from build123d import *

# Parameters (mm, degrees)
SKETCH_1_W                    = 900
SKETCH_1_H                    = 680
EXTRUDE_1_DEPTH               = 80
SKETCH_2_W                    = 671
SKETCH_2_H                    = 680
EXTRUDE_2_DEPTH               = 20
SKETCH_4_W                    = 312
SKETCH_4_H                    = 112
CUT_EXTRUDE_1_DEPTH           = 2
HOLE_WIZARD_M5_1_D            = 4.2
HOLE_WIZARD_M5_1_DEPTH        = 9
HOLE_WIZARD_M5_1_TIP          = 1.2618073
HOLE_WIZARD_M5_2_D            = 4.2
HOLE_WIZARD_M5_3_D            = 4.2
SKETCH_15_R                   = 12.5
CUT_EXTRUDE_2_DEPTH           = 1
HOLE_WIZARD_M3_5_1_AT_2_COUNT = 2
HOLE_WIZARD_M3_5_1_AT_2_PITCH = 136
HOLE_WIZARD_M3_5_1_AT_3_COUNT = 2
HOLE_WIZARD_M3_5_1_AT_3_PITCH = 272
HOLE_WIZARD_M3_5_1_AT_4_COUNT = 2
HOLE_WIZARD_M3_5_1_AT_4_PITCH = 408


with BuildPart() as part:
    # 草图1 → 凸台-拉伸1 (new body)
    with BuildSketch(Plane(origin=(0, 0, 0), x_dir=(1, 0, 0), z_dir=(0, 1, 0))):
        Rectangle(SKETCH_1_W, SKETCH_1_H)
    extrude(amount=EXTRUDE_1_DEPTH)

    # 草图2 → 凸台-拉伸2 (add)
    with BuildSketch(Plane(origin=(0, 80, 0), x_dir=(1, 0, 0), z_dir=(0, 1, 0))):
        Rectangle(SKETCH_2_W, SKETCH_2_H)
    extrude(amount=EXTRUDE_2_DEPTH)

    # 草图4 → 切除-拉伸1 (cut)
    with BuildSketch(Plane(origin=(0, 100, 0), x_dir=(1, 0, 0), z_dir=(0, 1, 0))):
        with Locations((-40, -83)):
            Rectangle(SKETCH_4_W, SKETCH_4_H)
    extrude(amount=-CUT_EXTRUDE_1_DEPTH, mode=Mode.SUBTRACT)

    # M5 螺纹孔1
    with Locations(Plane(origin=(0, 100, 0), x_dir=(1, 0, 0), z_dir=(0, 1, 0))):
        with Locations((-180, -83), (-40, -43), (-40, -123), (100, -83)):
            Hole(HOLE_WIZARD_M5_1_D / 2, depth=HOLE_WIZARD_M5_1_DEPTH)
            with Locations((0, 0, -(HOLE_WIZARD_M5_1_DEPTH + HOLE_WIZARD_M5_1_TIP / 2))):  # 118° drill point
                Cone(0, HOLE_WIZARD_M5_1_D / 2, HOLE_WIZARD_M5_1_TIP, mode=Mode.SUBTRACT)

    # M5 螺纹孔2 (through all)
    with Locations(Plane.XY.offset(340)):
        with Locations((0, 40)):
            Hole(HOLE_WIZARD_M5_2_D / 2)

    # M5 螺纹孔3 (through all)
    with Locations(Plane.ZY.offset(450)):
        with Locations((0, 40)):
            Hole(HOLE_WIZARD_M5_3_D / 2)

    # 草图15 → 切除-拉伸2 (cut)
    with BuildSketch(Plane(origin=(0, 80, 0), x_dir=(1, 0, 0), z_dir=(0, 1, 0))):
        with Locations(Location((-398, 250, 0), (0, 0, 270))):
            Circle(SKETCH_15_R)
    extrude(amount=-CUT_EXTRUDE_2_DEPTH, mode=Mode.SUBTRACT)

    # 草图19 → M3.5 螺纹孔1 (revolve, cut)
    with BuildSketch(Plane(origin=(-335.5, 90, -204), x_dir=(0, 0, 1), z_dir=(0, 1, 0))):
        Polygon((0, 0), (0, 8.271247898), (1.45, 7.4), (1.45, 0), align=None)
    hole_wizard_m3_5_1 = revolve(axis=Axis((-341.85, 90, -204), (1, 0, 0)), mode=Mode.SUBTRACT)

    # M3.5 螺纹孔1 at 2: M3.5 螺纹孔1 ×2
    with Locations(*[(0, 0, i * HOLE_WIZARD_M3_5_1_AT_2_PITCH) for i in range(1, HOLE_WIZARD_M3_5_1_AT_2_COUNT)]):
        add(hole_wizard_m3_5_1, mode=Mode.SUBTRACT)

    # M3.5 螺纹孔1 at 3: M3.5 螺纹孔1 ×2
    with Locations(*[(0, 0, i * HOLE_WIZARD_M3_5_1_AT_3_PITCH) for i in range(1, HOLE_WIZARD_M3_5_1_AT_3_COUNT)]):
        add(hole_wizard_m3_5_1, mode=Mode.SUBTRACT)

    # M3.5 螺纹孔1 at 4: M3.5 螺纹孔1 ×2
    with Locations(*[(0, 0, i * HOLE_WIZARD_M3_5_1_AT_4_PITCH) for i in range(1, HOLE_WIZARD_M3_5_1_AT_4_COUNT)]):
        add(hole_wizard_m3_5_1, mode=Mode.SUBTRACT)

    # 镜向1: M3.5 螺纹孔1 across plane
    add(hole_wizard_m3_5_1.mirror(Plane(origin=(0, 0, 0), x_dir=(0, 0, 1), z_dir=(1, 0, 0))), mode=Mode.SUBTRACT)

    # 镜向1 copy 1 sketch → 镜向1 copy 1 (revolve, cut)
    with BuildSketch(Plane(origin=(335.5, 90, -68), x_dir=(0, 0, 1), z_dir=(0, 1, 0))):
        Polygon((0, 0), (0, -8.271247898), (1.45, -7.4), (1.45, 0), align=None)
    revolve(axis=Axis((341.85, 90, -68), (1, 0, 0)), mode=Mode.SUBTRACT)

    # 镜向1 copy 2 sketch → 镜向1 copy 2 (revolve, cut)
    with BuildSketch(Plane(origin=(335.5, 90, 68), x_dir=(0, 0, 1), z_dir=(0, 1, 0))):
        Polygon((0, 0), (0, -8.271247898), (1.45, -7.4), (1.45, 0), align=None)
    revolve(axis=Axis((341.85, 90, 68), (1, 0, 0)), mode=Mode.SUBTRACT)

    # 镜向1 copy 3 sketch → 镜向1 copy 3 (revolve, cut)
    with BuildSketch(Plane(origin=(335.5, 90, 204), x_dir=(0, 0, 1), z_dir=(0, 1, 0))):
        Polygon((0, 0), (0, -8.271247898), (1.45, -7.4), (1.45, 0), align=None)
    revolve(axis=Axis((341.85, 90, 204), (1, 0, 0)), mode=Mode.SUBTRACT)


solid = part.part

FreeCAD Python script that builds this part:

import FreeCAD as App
import Part
import Sketcher

V = App.Vector
Q = App.Units.Quantity

doc = App.newDocument("Part")
body = doc.addObject("PartDesign::Body", "Body")

# Sketch on XZ plane
sketch1 = body.newObject("Sketcher::SketchObject", "Sketch")
sketch1.AttachmentSupport = (doc.getObject("XZ_Plane"), [""])
sketch1.MapMode = "FlatFace"
sketch1.addGeometry([
    Part.LineSegment(V(-450, -340, 0), V(-450, 340, 0)),
    Part.LineSegment(V(-450, 340, 0), V(450, 340, 0)),
    Part.LineSegment(V(450, 340, 0), V(450, -340, 0)),
    Part.LineSegment(V(450, -340, 0), V(-450, -340, 0)),
], False)
sketch1.addConstraint([
    Sketcher.Constraint("Coincident", 0, 2, 1, 1),
    Sketcher.Constraint("Coincident", 1, 2, 2, 1),
    Sketcher.Constraint("Coincident", 2, 2, 3, 1),
    Sketcher.Constraint("Coincident", 3, 2, 0, 1),
    Sketcher.Constraint("Vertical", 0),
    Sketcher.Constraint("Horizontal", 1),
    Sketcher.Constraint("Vertical", 2),
    Sketcher.Constraint("Horizontal", 3),
    Sketcher.Constraint("Symmetric", 0, 2, 2, 2, -1, 1),
    Sketcher.Constraint("DistanceX", 1, 1, 1, 2, 900.0),
    Sketcher.Constraint("DistanceY", 0, 1, 0, 2, 680.0),
])
pad1 = body.newObject("PartDesign::Pad", "Pad")
pad1.Profile = sketch1
pad1.Length = 80
pad1.Reversed = True

# Sketch on XZ plane
sketch2 = body.newObject("Sketcher::SketchObject", "Sketch001")
sketch2.AttachmentSupport = (doc.getObject("XZ_Plane"), [""])
sketch2.MapMode = "FlatFace"
sketch2.AttachmentOffset = App.Placement(V(0, 0, -80), App.Rotation())
sketch2.addGeometry([
    Part.LineSegment(V(-336, -340, 0), V(-336, 340, 0)),
    Part.LineSegment(V(-336, 340, 0), V(336, 340, 0)),
    Part.LineSegment(V(336, 340, 0), V(336, -340, 0)),
    Part.LineSegment(V(336, -340, 0), V(-336, -340, 0)),
], False)
sketch2.addConstraint([
    Sketcher.Constraint("Coincident", 0, 2, 1, 1),
    Sketcher.Constraint("Coincident", 1, 2, 2, 1),
    Sketcher.Constraint("Coincident", 2, 2, 3, 1),
    Sketcher.Constraint("Coincident", 3, 2, 0, 1),
    Sketcher.Constraint("Vertical", 0),
    Sketcher.Constraint("Horizontal", 1),
    Sketcher.Constraint("Vertical", 2),
    Sketcher.Constraint("Horizontal", 3),
    Sketcher.Constraint("Symmetric", 0, 2, 2, 2, -1, 1),
    Sketcher.Constraint("DistanceX", 1, 1, 1, 2, 671.0),
    Sketcher.Constraint("DistanceY", 0, 1, 0, 2, 680.0),
])
pad2 = body.newObject("PartDesign::Pad", "Pad001")
pad2.Profile = sketch2
pad2.Length = 20
pad2.Reversed = True

# Sketch on XZ plane
sketch3 = body.newObject("Sketcher::SketchObject", "Sketch002")
sketch3.AttachmentSupport = (doc.getObject("XZ_Plane"), [""])
sketch3.MapMode = "FlatFace"
sketch3.AttachmentOffset = App.Placement(V(0, 0, -100), App.Rotation())
sketch3.addGeometry([
    Part.LineSegment(V(-196, 27, 0), V(-196, 139, 0)),
    Part.LineSegment(V(-196, 139, 0), V(116, 139, 0)),
    Part.LineSegment(V(116, 139, 0), V(116, 27, 0)),
    Part.LineSegment(V(116, 27, 0), V(-196, 27, 0)),
], False)
sketch3.addConstraint([
    Sketcher.Constraint("Coincident", 0, 2, 1, 1),
    Sketcher.Constraint("Coincident", 1, 2, 2, 1),
    Sketcher.Constraint("Coincident", 2, 2, 3, 1),
    Sketcher.Constraint("Coincident", 3, 2, 0, 1),
    Sketcher.Constraint("Vertical", 0),
    Sketcher.Constraint("Horizontal", 1),
    Sketcher.Constraint("Vertical", 2),
    Sketcher.Constraint("Horizontal", 3),
    Sketcher.Constraint("DistanceX", 1, 1, 1, 2, 312.0),
    Sketcher.Constraint("DistanceY", 0, 1, 0, 2, 112.0),
    Sketcher.Constraint("DistanceX", 0, 2, -1, 1, 196.0),
    Sketcher.Constraint("DistanceY", -1, 1, 0, 2, 139.0),
])
pocket1 = body.newObject("PartDesign::Pocket", "Pocket")
pocket1.Profile = sketch3
pocket1.Length = 2
pocket1.Reversed = True

# Sketch on XZ plane
sketch4 = body.newObject("Sketcher::SketchObject", "Sketch003")
sketch4.AttachmentSupport = (doc.getObject("XZ_Plane"), [""])
sketch4.MapMode = "FlatFace"
sketch4.AttachmentOffset = App.Placement(V(0, 0, -100), App.Rotation())
sketch4.addGeometry([
    Part.Circle(V(-180, 83, 0), V(0, 0, 1), 2.1),
    Part.Circle(V(-40, 43, 0), V(0, 0, 1), 2.1),
    Part.Circle(V(-40, 123, 0), V(0, 0, 1), 2.1),
    Part.Circle(V(100, 83, 0), V(0, 0, 1), 2.1),
], False)
sketch4.addConstraint([
    Sketcher.Constraint("Equal", 0, 1),
    Sketcher.Constraint("Equal", 1, 2),
    Sketcher.Constraint("Equal", 2, 3),
    Sketcher.Constraint("Horizontal", 0, 3, 3, 3),
    Sketcher.Constraint("Vertical", 1, 3, 2, 3),
    Sketcher.Constraint("Diameter", 0, 4.2),
    Sketcher.Constraint("DistanceX", 0, 3, -1, 1, 180.0),
    Sketcher.Constraint("DistanceY", -1, 1, 0, 3, 83.0),
    Sketcher.Constraint("DistanceX", 1, 3, -1, 1, 40.0),
    Sketcher.Constraint("DistanceY", -1, 1, 1, 3, 43.0),
    Sketcher.Constraint("DistanceY", -1, 1, 2, 3, 123.0),
    Sketcher.Constraint("DistanceX", -1, 1, 3, 3, 100.0),
])
doc.recompute()
hole = body.newObject("PartDesign::Hole", "Hole")
hole.Profile = sketch4
hole.ThreadType = "None"
hole.Diameter = 4.2
hole.DepthType = "Dimension"
hole.Depth = 9
hole.DrillPoint = "Angled"
hole.DrillPointAngle = 118
hole.Reversed = True

# Sketch on XY plane
sketch5 = body.newObject("Sketcher::SketchObject", "Sketch004")
sketch5.AttachmentSupport = (doc.getObject("XY_Plane"), [""])
sketch5.MapMode = "FlatFace"
sketch5.AttachmentOffset = App.Placement(V(0, 0, 340), App.Rotation())
sketch5.addGeometry(Part.Circle(V(0, 40, 0), V(0, 0, 1), 2.1), False)
sketch5.addConstraint([
    Sketcher.Constraint("PointOnObject", 0, 3, -2),
    Sketcher.Constraint("Diameter", 0, 4.2),
    Sketcher.Constraint("DistanceY", -1, 1, 0, 3, 40.0),
])
doc.recompute()
hole2 = body.newObject("PartDesign::Hole", "Hole001")
hole2.Profile = sketch5
hole2.ThreadType = "None"
hole2.Diameter = 4.2
hole2.DepthType = "ThroughAll"

# Sketch on YZ plane
sketch6 = body.newObject("Sketcher::SketchObject", "Sketch005")
sketch6.AttachmentSupport = (doc.getObject("YZ_Plane"), [""])
sketch6.MapMode = "FlatFace"
sketch6.AttachmentOffset = App.Placement(V(0, 0, -450), App.Rotation())
sketch6.addGeometry(Part.Circle(V(40, 0, 0), V(0, 0, 1), 2.1), False)
sketch6.addConstraint([
    Sketcher.Constraint("PointOnObject", 0, 3, -1),
    Sketcher.Constraint("Diameter", 0, 4.2),
    Sketcher.Constraint("DistanceX", -1, 1, 0, 3, 40.0),
])
doc.recompute()
hole3 = body.newObject("PartDesign::Hole", "Hole002")
hole3.Profile = sketch6
hole3.ThreadType = "None"
hole3.Diameter = 4.2
hole3.DepthType = "ThroughAll"
hole3.Reversed = True

# Sketch on XZ plane
sketch7 = body.newObject("Sketcher::SketchObject", "Sketch006")
sketch7.AttachmentSupport = (doc.getObject("XZ_Plane"), [""])
sketch7.MapMode = "FlatFace"
sketch7.AttachmentOffset = App.Placement(V(0, 0, -80), App.Rotation())
sketch7.addGeometry(Part.Circle(V(-398, -250, 0), V(0, 0, 1), 12), False)
sketch7.addConstraint([
    Sketcher.Constraint("Diameter", 0, 25.0),
    Sketcher.Constraint("DistanceX", 0, 3, -1, 1, 398.0),
    Sketcher.Constraint("DistanceY", 0, 3, -1, 1, 250.0),
])
pocket2 = body.newObject("PartDesign::Pocket", "Pocket001")
pocket2.Profile = sketch7
pocket2.Length = 1
pocket2.Reversed = True

# Sketch on XZ plane
sketch8 = body.newObject("Sketcher::SketchObject", "Sketch007")
sketch8.AttachmentSupport = (doc.getObject("XZ_Plane"), [""])
sketch8.MapMode = "FlatFace"
sketch8.AttachmentOffset = App.Placement(V(0, 0, -90), App.Rotation())
sketch8.addGeometry([
    Part.LineSegment(V(-327.2, -204, 0), V(-335.5, -204, 0)),
    Part.LineSegment(V(-335.5, -204, 0), V(-335.5, -202.6, 0)),
    Part.LineSegment(V(-335.5, -202.6, 0), V(-328.1, -202.6, 0)),
    Part.LineSegment(V(-328.1, -202.6, 0), V(-327.2, -204, 0)),
], False)
sketch8.addGeometry(Part.LineSegment(V(-335.5, -204, 0), V(-327.2, -204, 0)), True)  # axis
sketch8.addConstraint([
    Sketcher.Constraint("Coincident", 0, 2, 1, 1),
    Sketcher.Constraint("Coincident", 1, 2, 2, 1),
    Sketcher.Constraint("Coincident", 2, 2, 3, 1),
    Sketcher.Constraint("Coincident", 3, 2, 0, 1),
    Sketcher.Constraint("Horizontal", 0),
    Sketcher.Constraint("Vertical", 1),
    Sketcher.Constraint("Horizontal", 2),
    Sketcher.Constraint("Horizontal", 4),
    Sketcher.Constraint("Coincident", 4, 1, 0, 2),
    Sketcher.Constraint("Equal", 0, 4),
    Sketcher.Constraint("Angle", 3, Q("-59 deg")),
    Sketcher.Constraint("DistanceX", 2, 1, 2, 2, 7.4),
    Sketcher.Constraint("DistanceY", 0, 2, -1, 1, 204.0),
    Sketcher.Constraint("DistanceY", 1, 1, 1, 2, 1.45),
    Sketcher.Constraint("DistanceX", 0, 2, -1, 1, 335.5),
])
groove = body.newObject("PartDesign::Groove", "Groove")
groove.Profile = sketch8
groove.ReferenceAxis = (sketch8, ["Axis0"])
groove.Angle = 360
doc.recompute()

linearpattern = body.newObject("PartDesign::LinearPattern", "LinearPattern")
linearpattern.Originals = [groove]
linearpattern.Direction = (doc.getObject("Z_Axis"), [""])
linearpattern.Mode = "offset"
linearpattern.Offset = 136
linearpattern.Occurrences = 2
body.Tip = linearpattern
doc.recompute()

linearpattern2 = body.newObject("PartDesign::LinearPattern", "LinearPattern001")
linearpattern2.Originals = [groove]
linearpattern2.Direction = (doc.getObject("Z_Axis"), [""])
linearpattern2.Mode = "offset"
linearpattern2.Offset = 272
linearpattern2.Occurrences = 2
body.Tip = linearpattern2
doc.recompute()

linearpattern3 = body.newObject("PartDesign::LinearPattern", "LinearPattern002")
linearpattern3.Originals = [groove]
linearpattern3.Direction = (doc.getObject("Z_Axis"), [""])
linearpattern3.Mode = "offset"
linearpattern3.Offset = 408
linearpattern3.Occurrences = 2
body.Tip = linearpattern3
doc.recompute()

mirrored = body.newObject("PartDesign::Mirrored", "Mirrored")
mirrored.Originals = [groove]
mirrored.MirrorPlane = (doc.getObject("YZ_Plane"), [""])
body.Tip = mirrored

# Sketch on XZ plane
sketch9 = body.newObject("Sketcher::SketchObject", "Sketch008")
sketch9.AttachmentSupport = (doc.getObject("XZ_Plane"), [""])
sketch9.MapMode = "FlatFace"
sketch9.AttachmentOffset = App.Placement(V(0, 0, -90), App.Rotation())
sketch9.addGeometry([
    Part.LineSegment(V(335.5, -68, 0), V(327.2, -68, 0)),
    Part.LineSegment(V(327.2, -68, 0), V(328.1, -66.5, 0)),
    Part.LineSegment(V(328.1, -66.5, 0), V(335.5, -66.5, 0)),
    Part.LineSegment(V(335.5, -66.5, 0), V(335.5, -68, 0)),
], False)
sketch9.addGeometry(Part.LineSegment(V(327.2, -68, 0), V(335.5, -68, 0)), True)  # axis
sketch9.addConstraint([
    Sketcher.Constraint("Coincident", 0, 2, 1, 1),
    Sketcher.Constraint("Coincident", 1, 2, 2, 1),
    Sketcher.Constraint("Coincident", 2, 2, 3, 1),
    Sketcher.Constraint("Coincident", 3, 2, 0, 1),
    Sketcher.Constraint("Horizontal", 0),
    Sketcher.Constraint("Horizontal", 2),
    Sketcher.Constraint("Vertical", 3),
    Sketcher.Constraint("Horizontal", 4),
    Sketcher.Constraint("Coincident", 4, 1, 0, 2),
    Sketcher.Constraint("Vertical", 2, 2, 4, 2),
    Sketcher.Constraint("Angle", 1, Q("59 deg")),
    Sketcher.Constraint("DistanceX", 2, 1, 2, 2, 7.4),
    Sketcher.Constraint("DistanceY", 0, 2, -1, 1, 68.0),
    Sketcher.Constraint("DistanceY", 3, 2, 3, 1, 1.45),
    Sketcher.Constraint("DistanceX", -1, 1, 1, 2, 328.1),
])
groove2 = body.newObject("PartDesign::Groove", "Groove001")
groove2.Profile = sketch9
groove2.ReferenceAxis = (sketch9, ["Axis0"])
groove2.Angle = 360

# Sketch on XZ plane
sketch10 = body.newObject("Sketcher::SketchObject", "Sketch009")
sketch10.AttachmentSupport = (doc.getObject("XZ_Plane"), [""])
sketch10.MapMode = "FlatFace"
sketch10.AttachmentOffset = App.Placement(V(0, 0, -90), App.Rotation())
sketch10.addGeometry([
    Part.LineSegment(V(335.5, 68, 0), V(327.2, 68, 0)),
    Part.LineSegment(V(327.2, 68, 0), V(328.1, 69.5, 0)),
    Part.LineSegment(V(328.1, 69.5, 0), V(335.5, 69.5, 0)),
    Part.LineSegment(V(335.5, 69.5, 0), V(335.5, 68, 0)),
], False)
sketch10.addGeometry(Part.LineSegment(V(327.2, 68, 0), V(335.5, 68, 0)), True)  # axis
sketch10.addConstraint([
    Sketcher.Constraint("Coincident", 0, 2, 1, 1),
    Sketcher.Constraint("Coincident", 1, 2, 2, 1),
    Sketcher.Constraint("Coincident", 2, 2, 3, 1),
    Sketcher.Constraint("Coincident", 3, 2, 0, 1),
    Sketcher.Constraint("Horizontal", 0),
    Sketcher.Constraint("Horizontal", 2),
    Sketcher.Constraint("Vertical", 3),
    Sketcher.Constraint("Horizontal", 4),
    Sketcher.Constraint("Coincident", 4, 1, 0, 2),
    Sketcher.Constraint("Vertical", 2, 2, 4, 2),
    Sketcher.Constraint("Angle", 1, Q("59 deg")),
    Sketcher.Constraint("DistanceX", 2, 1, 2, 2, 7.4),
    Sketcher.Constraint("DistanceY", -1, 1, 0, 2, 68.0),
    Sketcher.Constraint("DistanceY", 3, 2, 3, 1, 1.45),
    Sketcher.Constraint("DistanceX", -1, 1, 1, 2, 328.1),
])
groove3 = body.newObject("PartDesign::Groove", "Groove002")
groove3.Profile = sketch10
groove3.ReferenceAxis = (sketch10, ["Axis0"])
groove3.Angle = 360

# Sketch on XZ plane
sketch11 = body.newObject("Sketcher::SketchObject", "Sketch010")
sketch11.AttachmentSupport = (doc.getObject("XZ_Plane"), [""])
sketch11.MapMode = "FlatFace"
sketch11.AttachmentOffset = App.Placement(V(0, 0, -90), App.Rotation())
sketch11.addGeometry([
    Part.LineSegment(V(335.5, 204, 0), V(327.2, 204, 0)),
    Part.LineSegment(V(327.2, 204, 0), V(328.1, 205.4, 0)),
    Part.LineSegment(V(328.1, 205.4, 0), V(335.5, 205.4, 0)),
    Part.LineSegment(V(335.5, 205.4, 0), V(335.5, 204, 0)),
], False)
sketch11.addGeometry(Part.LineSegment(V(327.2, 204, 0), V(335.5, 204, 0)), True)  # axis
sketch11.addConstraint([
    Sketcher.Constraint("Coincident", 0, 2, 1, 1),
    Sketcher.Constraint("Coincident", 1, 2, 2, 1),
    Sketcher.Constraint("Coincident", 2, 2, 3, 1),
    Sketcher.Constraint("Coincident", 3, 2, 0, 1),
    Sketcher.Constraint("Horizontal", 0),
    Sketcher.Constraint("Horizontal", 2),
    Sketcher.Constraint("Vertical", 3),
    Sketcher.Constraint("Horizontal", 4),
    Sketcher.Constraint("Coincident", 4, 1, 0, 2),
    Sketcher.Constraint("Vertical", 2, 2, 4, 2),
    Sketcher.Constraint("Angle", 1, Q("59 deg")),
    Sketcher.Constraint("DistanceX", 2, 1, 2, 2, 7.4),
    Sketcher.Constraint("DistanceY", -1, 1, 0, 2, 204.0),
    Sketcher.Constraint("DistanceY", 3, 2, 3, 1, 1.45),
    Sketcher.Constraint("DistanceX", -1, 1, 1, 2, 328.1),
])
groove4 = body.newObject("PartDesign::Groove", "Groove003")
groove4.Profile = sketch11
groove4.ReferenceAxis = (sketch11, ["Axis0"])
groove4.Angle = 360

doc.recompute()
